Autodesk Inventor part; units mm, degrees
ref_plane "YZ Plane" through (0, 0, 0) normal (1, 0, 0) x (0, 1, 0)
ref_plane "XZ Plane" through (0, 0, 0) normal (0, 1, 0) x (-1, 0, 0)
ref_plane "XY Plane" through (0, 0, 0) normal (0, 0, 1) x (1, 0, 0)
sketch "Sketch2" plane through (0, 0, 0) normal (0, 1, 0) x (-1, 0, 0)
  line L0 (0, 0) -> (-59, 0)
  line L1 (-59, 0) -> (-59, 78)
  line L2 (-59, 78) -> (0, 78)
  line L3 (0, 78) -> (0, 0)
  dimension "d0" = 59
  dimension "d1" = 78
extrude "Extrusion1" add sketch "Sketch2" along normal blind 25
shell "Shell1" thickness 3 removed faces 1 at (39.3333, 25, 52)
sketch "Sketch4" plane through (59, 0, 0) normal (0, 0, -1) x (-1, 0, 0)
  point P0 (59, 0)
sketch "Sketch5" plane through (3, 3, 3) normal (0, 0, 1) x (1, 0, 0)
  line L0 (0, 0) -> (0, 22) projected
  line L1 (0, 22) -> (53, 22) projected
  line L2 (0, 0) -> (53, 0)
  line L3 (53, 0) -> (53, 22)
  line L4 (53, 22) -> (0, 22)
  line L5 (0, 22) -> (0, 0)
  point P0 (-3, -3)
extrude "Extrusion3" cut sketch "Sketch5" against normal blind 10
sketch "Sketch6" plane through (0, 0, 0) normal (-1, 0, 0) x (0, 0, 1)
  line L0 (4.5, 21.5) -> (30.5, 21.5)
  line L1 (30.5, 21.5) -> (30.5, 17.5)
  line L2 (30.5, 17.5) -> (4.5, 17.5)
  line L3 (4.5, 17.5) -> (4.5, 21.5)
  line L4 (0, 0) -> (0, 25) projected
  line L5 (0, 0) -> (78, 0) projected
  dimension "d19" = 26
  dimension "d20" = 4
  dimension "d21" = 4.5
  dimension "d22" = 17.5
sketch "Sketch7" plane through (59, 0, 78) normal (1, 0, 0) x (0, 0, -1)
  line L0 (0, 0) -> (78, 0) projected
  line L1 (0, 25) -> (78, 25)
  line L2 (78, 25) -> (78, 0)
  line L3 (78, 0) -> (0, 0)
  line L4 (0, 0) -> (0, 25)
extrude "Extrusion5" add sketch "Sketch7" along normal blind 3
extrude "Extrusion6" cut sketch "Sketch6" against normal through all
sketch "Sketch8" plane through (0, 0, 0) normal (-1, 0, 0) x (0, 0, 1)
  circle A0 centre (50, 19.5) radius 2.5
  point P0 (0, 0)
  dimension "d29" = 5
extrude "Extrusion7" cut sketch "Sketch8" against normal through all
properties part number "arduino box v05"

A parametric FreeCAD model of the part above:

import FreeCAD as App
import Part
import Sketcher
Q = App.Units.Quantity


def faces_at(feature, points):
    """Names of the faces that lie closest to the given points."""
    faces = feature.Shape.Faces
    near = lambda p: min(range(len(faces)), key=lambda i: faces[i].distToShape(Part.Vertex(*p))[0])
    return sorted({f"Face{near(p) + 1}" for p in points})

doc = App.newDocument("Part")
params = doc.addObject("Spreadsheet::Sheet", "Params")
for row, (alias, value) in enumerate([
    ("sketch1_width", "59 mm"),
    ("sketch1_height", "78 mm"),
    ("pad1_length", "25 mm"),
    ("thickness_wall", "3 mm"),
    ("sketch2_width", "53 mm"),
    ("sketch2_height", "22 mm"),
    ("pocket1_length", "10 mm"),
    ("sketch3_width", "25 mm"),
    ("sketch3_height", "78 mm"),
    ("pad2_length", "3 mm"),
    ("sketch4_width", "4 mm"),
    ("sketch4_height", "26 mm"),
    ("sketch5_diameter", "5 mm"),
], start=1):
    params.set(f"A{row}", alias)
    params.set(f"B{row}", "=" + value)
    params.setAlias(f"B{row}", alias)

body = doc.addObject("PartDesign::Body", "Body")

# Sketch on XZ plane
sketch1 = body.newObject("Sketcher::SketchObject", "Sketch")
sketch1.AttachmentSupport = (doc.getObject("XZ_Plane"), [""])
sketch1.MapMode = "FlatFace"
sketch1.addGeometry([
    Part.LineSegment(App.Vector(59, 0, 0), App.Vector(0, 0, 0)),
    Part.LineSegment(App.Vector(0, 0, 0), App.Vector(0, 78, 0)),
    Part.LineSegment(App.Vector(0, 78, 0), App.Vector(59, 78, 0)),
    Part.LineSegment(App.Vector(59, 78, 0), App.Vector(59, 0, 0)),
], False)
sketch1.addConstraint([
    Sketcher.Constraint("Coincident", 0, 2, 1, 1),
    Sketcher.Constraint("Coincident", 1, 2, 2, 1),
    Sketcher.Constraint("Coincident", 2, 2, 3, 1),
    Sketcher.Constraint("Coincident", 3, 2, 0, 1),
    Sketcher.Constraint("Horizontal", 0),
    Sketcher.Constraint("Vertical", 1),
    Sketcher.Constraint("Horizontal", 2),
    Sketcher.Constraint("Vertical", 3),
    Sketcher.Constraint("Coincident", 0, 2, -1, 1),
    Sketcher.Constraint("DistanceX", 0, 2, 0, 1, Q("59 mm")),
    Sketcher.Constraint("DistanceY", 1, 1, 1, 2, Q("78 mm")),
])
sketch1.setExpression("Constraints[9]", "Params.sketch1_width")
sketch1.setExpression("Constraints[10]", "Params.sketch1_height")
pad1 = body.newObject("PartDesign::Pad", "Pad")
pad1.Profile = sketch1
pad1.setExpression("Length", "Params.pad1_length")
pad1.Reversed = True
doc.recompute()

thickness = body.newObject("PartDesign::Thickness", "Thickness")
thickness.Base = (pad1, faces_at(pad1, [(39.333, 25, 52)]))
thickness.setExpression("Value", "Params.thickness_wall")
thickness.Reversed = True
thickness.Join = "Intersection"

# Sketch on XY plane
sketch2 = body.newObject("Sketcher::SketchObject", "Sketch001")
sketch2.AttachmentSupport = (doc.getObject("XY_Plane"), [""])
sketch2.MapMode = "FlatFace"
sketch2.AttachmentOffset = App.Placement(App.Vector(0, 0, 3), App.Rotation())
sketch2.addGeometry([
    Part.LineSegment(App.Vector(3, 25, 0), App.Vector(3, 3, 0)),
    Part.LineSegment(App.Vector(3, 3, 0), App.Vector(56, 3, 0)),
    Part.LineSegment(App.Vector(56, 3, 0), App.Vector(56, 25, 0)),
    Part.LineSegment(App.Vector(56, 25, 0), App.Vector(3, 25, 0)),
], False)
sketch2.addConstraint([
    Sketcher.Constraint("Coincident", 0, 2, 1, 1),
    Sketcher.Constraint("Coincident", 1, 2, 2, 1),
    Sketcher.Constraint("Coincident", 2, 2, 3, 1),
    Sketcher.Constraint("Coincident", 3, 2, 0, 1),
    Sketcher.Constraint("Vertical", 0),
    Sketcher.Constraint("Horizontal", 1),
    Sketcher.Constraint("Vertical", 2),
    Sketcher.Constraint("Horizontal", 3),
    Sketcher.Constraint("DistanceX", 1, 1, 1, 2, Q("53 mm")),
    Sketcher.Constraint("DistanceY", 0, 2, 0, 1, Q("22 mm")),
    Sketcher.Constraint("DistanceX", -1, 1, 0, 2, Q("3 mm")),
    Sketcher.Constraint("DistanceY", -1, 1, 0, 2, Q("3 mm")),
])
sketch2.setExpression("Constraints[8]", "Params.sketch2_width")
sketch2.setExpression("Constraints[9]", "Params.sketch2_height")
pocket1 = body.newObject("PartDesign::Pocket", "Pocket")
pocket1.Profile = sketch2
pocket1.setExpression("Length", "Params.pocket1_length")

# Sketch on YZ plane
sketch3 = body.newObject("Sketcher::SketchObject", "Sketch002")
sketch3.AttachmentSupport = (doc.getObject("YZ_Plane"), [""])
sketch3.MapMode = "FlatFace"
sketch3.AttachmentOffset = App.Placement(App.Vector(0, 0, 59), App.Rotation())
sketch3.addGeometry([
    Part.LineSegment(App.Vector(25, 78, 0), App.Vector(0, 78, 0)),
    Part.LineSegment(App.Vector(0, 78, 0), App.Vector(0, 0, 0)),
    Part.LineSegment(App.Vector(0, 0, 0), App.Vector(25, 0, 0)),
    Part.LineSegment(App.Vector(25, 0, 0), App.Vector(25, 78, 0)),
], False)
sketch3.addConstraint([
    Sketcher.Constraint("Coincident", 0, 2, 1, 1),
    Sketcher.Constraint("Coincident", 1, 2, 2, 1),
    Sketcher.Constraint("Coincident", 2, 2, 3, 1),
    Sketcher.Constraint("Coincident", 3, 2, 0, 1),
    Sketcher.Constraint("Horizontal", 0),
    Sketcher.Constraint("Vertical", 1),
    Sketcher.Constraint("Horizontal", 2),
    Sketcher.Constraint("Vertical", 3),
    Sketcher.Constraint("Coincident", 1, 2, -1, 1),
    Sketcher.Constraint("DistanceX", 0, 2, 0, 1, Q("25 mm")),
    Sketcher.Constraint("DistanceY", 1, 2, 1, 1, Q("78 mm")),
])
sketch3.setExpression("Constraints[9]", "Params.sketch3_width")
sketch3.setExpression("Constraints[10]", "Params.sketch3_height")
pad2 = body.newObject("PartDesign::Pad", "Pad001")
pad2.Profile = sketch3
pad2.setExpression("Length", "Params.pad2_length")

# Sketch on YZ plane
sketch4 = body.newObject("Sketcher::SketchObject", "Sketch003")
sketch4.AttachmentSupport = (doc.getObject("YZ_Plane"), [""])
sketch4.MapMode = "FlatFace"
sketch4.addGeometry([
    Part.LineSegment(App.Vector(21.5, 30.5, 0), App.Vector(21.5, 4.5, 0)),
    Part.LineSegment(App.Vector(21.5, 4.5, 0), App.Vector(17.5, 4.5, 0)),
    Part.LineSegment(App.Vector(17.5, 4.5, 0), App.Vector(17.5, 30.5, 0)),
    Part.LineSegment(App.Vector(17.5, 30.5, 0), App.Vector(21.5, 30.5, 0)),
], False)
sketch4.addConstraint([
    Sketcher.Constraint("Coincident", 0, 2, 1, 1),
    Sketcher.Constraint("Coincident", 1, 2, 2, 1),
    Sketcher.Constraint("Coincident", 2, 2, 3, 1),
    Sketcher.Constraint("Coincident", 3, 2, 0, 1),
    Sketcher.Constraint("Vertical", 0),
    Sketcher.Constraint("Horizontal", 1),
    Sketcher.Constraint("Vertical", 2),
    Sketcher.Constraint("Horizontal", 3),
    Sketcher.Constraint("DistanceX", 1, 2, 1, 1, Q("4 mm")),
    Sketcher.Constraint("DistanceY", 0, 2, 0, 1, Q("26 mm")),
    Sketcher.Constraint("DistanceY", -1, 1, 0, 2, Q("4.5 mm")),
    Sketcher.Constraint("DistanceX", -1, 1, 1, 2, Q("17.5 mm")),
])
sketch4.setExpression("Constraints[8]", "Params.sketch4_width")
sketch4.setExpression("Constraints[9]", "Params.sketch4_height")
pocket2 = body.newObject("PartDesign::Pocket", "Pocket001")
pocket2.Profile = sketch4
pocket2.Type = "ThroughAll"
pocket2.Reversed = True

# Sketch on YZ plane
sketch5 = body.newObject("Sketcher::SketchObject", "Sketch004")
sketch5.AttachmentSupport = (doc.getObject("YZ_Plane"), [""])
sketch5.MapMode = "FlatFace"
sketch5.addGeometry(Part.Circle(App.Vector(19.5, 50, 0), App.Vector(0, 0, 1), 2.5), False)
sketch5.addConstraint([
    Sketcher.Constraint("Diameter", 0, Q("5 mm")),
    Sketcher.Constraint("DistanceY", -1, 1, 0, 3, Q("50 mm")),
    Sketcher.Constraint("DistanceX", -1, 1, 0, 3, Q("19.5 mm")),
])
sketch5.setExpression("Constraints[0]", "Params.sketch5_diameter")
pocket3 = body.newObject("PartDesign::Pocket", "Pocket002")
pocket3.Profile = sketch5
pocket3.Type = "ThroughAll"
pocket3.Reversed = True

doc.recompute()
